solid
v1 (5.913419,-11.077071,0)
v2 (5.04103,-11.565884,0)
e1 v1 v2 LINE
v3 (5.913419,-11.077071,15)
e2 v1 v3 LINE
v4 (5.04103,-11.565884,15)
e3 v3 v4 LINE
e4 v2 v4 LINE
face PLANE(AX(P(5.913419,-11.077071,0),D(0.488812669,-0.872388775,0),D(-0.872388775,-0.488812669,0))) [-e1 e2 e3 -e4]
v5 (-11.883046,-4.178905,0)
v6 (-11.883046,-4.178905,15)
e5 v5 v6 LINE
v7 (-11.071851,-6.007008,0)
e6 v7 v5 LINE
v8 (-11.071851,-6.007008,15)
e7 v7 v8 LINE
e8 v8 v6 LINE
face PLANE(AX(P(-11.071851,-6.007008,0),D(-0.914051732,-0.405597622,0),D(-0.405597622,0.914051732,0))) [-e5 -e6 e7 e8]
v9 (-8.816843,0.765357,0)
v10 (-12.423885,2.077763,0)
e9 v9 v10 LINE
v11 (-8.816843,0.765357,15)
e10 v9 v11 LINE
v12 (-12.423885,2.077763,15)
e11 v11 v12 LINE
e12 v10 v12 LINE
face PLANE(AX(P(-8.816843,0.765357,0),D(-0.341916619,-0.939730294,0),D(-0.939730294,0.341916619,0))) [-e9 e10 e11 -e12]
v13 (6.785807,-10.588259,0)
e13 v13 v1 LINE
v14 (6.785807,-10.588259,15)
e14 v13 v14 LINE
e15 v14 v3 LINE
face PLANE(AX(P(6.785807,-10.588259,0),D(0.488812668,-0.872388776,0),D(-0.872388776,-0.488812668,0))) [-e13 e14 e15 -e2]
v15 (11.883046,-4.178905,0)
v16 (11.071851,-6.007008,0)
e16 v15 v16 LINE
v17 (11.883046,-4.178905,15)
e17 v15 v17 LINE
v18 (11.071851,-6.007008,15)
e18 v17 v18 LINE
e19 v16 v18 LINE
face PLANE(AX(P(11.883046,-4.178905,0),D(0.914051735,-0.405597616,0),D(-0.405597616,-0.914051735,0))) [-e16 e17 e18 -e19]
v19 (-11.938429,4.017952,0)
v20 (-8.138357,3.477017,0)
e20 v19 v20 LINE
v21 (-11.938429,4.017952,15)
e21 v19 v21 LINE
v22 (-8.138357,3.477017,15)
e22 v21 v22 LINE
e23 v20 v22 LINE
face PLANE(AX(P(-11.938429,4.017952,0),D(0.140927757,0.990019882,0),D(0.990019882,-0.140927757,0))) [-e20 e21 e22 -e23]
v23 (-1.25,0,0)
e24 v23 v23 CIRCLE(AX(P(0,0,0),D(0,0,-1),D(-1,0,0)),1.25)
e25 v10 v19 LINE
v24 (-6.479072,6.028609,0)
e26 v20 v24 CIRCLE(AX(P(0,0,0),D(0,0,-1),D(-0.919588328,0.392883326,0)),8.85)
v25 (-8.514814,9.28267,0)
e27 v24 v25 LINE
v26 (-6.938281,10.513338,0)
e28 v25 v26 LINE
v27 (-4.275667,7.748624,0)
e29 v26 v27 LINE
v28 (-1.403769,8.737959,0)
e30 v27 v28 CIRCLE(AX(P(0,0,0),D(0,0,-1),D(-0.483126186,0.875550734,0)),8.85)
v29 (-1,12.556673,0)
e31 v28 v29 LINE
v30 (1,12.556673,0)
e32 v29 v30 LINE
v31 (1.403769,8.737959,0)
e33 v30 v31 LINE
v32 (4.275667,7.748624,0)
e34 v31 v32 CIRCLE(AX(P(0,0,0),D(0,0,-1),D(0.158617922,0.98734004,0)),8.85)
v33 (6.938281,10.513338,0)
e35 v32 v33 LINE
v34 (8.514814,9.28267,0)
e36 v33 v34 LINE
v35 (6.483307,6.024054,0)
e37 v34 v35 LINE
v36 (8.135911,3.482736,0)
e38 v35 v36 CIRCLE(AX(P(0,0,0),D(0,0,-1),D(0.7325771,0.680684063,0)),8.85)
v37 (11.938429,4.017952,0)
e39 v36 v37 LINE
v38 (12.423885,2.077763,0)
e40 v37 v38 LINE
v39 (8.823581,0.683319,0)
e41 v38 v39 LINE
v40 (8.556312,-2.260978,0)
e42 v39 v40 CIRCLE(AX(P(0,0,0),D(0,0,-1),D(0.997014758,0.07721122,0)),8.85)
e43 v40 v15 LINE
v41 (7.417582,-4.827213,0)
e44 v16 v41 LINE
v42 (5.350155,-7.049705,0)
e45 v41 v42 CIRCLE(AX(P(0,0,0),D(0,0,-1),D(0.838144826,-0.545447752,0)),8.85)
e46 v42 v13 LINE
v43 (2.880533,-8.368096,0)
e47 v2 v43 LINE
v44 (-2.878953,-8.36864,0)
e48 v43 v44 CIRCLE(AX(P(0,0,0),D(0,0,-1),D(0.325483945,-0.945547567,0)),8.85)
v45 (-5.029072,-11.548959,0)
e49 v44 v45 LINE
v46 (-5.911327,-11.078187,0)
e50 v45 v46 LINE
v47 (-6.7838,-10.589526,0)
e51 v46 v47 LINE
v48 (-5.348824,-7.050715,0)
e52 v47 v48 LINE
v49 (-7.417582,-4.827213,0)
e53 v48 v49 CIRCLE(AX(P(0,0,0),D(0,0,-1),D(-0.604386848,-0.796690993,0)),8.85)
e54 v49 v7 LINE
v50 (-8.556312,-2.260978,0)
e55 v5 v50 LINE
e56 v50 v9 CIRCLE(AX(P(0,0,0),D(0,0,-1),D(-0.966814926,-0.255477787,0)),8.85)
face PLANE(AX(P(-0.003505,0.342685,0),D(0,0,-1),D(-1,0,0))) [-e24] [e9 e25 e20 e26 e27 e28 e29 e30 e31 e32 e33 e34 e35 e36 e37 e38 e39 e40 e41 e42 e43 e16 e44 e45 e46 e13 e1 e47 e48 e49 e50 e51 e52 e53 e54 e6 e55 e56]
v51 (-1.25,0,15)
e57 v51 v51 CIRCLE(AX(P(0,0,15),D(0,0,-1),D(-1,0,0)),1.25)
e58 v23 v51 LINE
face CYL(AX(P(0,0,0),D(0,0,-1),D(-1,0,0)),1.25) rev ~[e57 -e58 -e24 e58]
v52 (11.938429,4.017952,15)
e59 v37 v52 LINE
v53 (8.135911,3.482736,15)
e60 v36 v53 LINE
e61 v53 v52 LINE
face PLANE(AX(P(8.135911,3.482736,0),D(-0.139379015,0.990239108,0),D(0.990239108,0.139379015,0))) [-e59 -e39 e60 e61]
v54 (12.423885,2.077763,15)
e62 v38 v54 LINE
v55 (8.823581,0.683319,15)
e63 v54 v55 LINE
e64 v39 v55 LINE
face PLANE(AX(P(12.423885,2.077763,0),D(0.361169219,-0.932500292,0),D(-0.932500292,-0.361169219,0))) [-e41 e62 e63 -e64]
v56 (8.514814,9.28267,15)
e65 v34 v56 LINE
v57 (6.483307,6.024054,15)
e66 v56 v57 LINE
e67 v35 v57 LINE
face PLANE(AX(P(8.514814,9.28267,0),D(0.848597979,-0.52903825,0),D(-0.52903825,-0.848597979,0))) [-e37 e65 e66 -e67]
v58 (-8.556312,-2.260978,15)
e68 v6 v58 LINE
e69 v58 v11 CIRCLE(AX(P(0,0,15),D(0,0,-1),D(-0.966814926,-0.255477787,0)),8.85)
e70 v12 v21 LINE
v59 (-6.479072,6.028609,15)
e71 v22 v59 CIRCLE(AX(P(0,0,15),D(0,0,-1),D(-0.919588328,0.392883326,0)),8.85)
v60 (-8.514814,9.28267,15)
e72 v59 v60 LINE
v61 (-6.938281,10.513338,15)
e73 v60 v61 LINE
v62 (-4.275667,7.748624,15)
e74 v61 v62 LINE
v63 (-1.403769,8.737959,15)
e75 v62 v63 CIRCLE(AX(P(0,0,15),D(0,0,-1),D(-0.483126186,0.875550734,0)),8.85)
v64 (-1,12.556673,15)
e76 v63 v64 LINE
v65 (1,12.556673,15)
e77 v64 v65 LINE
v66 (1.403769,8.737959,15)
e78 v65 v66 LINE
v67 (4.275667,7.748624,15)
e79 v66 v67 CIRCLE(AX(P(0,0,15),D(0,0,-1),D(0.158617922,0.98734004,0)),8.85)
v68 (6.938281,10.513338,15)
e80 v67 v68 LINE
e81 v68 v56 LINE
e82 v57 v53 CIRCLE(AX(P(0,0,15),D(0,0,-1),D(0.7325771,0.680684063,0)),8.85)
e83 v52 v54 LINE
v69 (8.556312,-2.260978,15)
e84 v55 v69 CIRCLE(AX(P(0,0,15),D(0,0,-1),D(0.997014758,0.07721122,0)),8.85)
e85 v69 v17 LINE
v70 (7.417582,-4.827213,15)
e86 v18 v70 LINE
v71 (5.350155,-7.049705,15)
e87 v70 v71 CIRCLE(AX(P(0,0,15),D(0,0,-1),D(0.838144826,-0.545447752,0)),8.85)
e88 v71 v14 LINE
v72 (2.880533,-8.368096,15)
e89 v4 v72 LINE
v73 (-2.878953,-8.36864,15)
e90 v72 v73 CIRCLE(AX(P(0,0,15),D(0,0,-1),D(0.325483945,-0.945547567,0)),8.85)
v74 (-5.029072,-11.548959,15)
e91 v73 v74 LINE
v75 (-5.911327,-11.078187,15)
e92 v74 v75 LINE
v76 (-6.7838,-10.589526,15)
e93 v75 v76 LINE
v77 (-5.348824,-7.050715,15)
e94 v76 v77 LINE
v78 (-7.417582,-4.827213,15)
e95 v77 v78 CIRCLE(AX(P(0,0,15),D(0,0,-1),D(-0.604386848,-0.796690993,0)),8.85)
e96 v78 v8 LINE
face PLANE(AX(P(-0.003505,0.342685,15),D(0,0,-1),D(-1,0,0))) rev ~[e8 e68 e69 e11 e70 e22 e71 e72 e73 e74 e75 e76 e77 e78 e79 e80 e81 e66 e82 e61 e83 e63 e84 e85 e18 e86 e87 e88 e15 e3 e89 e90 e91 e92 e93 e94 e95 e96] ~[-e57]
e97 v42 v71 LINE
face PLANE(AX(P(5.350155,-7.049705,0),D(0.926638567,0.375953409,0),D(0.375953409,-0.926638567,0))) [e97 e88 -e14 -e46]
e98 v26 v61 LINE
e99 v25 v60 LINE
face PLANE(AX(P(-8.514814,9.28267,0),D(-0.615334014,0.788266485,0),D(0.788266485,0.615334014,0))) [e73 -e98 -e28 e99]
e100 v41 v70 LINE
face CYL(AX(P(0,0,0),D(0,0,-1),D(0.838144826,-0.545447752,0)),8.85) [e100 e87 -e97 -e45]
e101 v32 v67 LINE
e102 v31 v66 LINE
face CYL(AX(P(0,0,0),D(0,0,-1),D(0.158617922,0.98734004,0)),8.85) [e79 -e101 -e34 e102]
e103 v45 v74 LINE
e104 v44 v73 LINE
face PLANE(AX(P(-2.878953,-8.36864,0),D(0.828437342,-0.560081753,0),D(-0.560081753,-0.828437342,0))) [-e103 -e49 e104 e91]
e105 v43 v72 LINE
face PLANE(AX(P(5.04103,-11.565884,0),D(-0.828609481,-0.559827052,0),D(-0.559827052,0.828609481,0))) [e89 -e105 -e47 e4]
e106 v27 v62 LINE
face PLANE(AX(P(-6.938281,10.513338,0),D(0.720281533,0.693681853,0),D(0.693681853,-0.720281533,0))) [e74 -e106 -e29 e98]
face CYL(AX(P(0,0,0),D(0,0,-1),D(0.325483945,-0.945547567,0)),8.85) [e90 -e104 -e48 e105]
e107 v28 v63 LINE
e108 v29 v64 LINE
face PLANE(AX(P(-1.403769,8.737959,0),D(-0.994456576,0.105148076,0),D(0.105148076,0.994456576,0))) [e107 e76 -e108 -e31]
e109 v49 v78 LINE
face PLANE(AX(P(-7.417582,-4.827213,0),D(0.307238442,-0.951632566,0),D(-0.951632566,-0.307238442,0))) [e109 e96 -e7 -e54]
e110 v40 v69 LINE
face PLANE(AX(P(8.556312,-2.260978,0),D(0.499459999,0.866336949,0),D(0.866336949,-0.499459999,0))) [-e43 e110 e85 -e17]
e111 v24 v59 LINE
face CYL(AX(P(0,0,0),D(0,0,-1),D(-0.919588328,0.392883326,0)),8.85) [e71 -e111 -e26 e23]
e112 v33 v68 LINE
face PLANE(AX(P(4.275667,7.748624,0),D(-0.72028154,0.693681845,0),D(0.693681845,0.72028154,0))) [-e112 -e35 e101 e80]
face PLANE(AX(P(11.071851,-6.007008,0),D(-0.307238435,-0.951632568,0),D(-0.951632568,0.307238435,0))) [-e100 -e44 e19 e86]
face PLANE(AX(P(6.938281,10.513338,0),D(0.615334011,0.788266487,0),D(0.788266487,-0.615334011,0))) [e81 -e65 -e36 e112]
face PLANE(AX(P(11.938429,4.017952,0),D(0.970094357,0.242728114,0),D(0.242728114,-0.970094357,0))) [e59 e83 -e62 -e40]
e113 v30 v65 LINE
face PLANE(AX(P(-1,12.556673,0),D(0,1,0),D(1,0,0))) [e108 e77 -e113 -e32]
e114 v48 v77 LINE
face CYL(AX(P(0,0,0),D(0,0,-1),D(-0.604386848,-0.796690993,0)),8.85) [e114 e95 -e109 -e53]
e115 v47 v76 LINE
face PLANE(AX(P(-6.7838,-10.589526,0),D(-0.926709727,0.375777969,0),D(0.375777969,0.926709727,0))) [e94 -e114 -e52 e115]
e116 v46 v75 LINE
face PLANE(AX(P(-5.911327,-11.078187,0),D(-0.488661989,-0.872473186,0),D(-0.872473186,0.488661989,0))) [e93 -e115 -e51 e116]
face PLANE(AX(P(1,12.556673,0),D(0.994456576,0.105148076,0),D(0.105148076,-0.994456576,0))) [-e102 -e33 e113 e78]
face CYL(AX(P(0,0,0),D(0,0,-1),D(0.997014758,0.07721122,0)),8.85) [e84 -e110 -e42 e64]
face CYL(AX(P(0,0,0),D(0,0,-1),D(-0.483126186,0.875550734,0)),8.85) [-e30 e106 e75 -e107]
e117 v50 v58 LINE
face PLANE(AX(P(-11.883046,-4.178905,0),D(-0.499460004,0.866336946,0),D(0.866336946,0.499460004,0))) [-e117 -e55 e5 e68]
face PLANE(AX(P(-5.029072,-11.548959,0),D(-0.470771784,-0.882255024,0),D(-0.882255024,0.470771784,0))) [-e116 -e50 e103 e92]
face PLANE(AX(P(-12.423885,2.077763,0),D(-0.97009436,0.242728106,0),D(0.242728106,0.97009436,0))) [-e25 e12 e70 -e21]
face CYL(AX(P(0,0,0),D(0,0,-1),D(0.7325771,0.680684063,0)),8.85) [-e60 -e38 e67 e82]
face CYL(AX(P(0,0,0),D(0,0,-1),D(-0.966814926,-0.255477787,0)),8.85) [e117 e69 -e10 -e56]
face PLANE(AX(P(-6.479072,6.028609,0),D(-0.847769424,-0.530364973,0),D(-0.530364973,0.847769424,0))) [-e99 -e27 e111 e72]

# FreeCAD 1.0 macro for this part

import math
import FreeCAD as App
import Part
import Sketcher
Q = App.Units.Quantity

doc = App.newDocument("Part")
body = doc.addObject("PartDesign::Body", "Body")

# Sketch on XY plane
sketch1 = body.newObject("Sketcher::SketchObject", "Sketch")
sketch1.AttachmentSupport = (doc.getObject("XY_Plane"), [""])
sketch1.MapMode = "FlatFace"
sketch1.addGeometry([
    Part.LineSegment(App.Vector(1, 12.6, 0), App.Vector(-1, 12.6, 0)),  # 0
    Part.LineSegment(App.Vector(-1, 12.6, 0), App.Vector(-1.4, 8.7, 0)),  # 1
    Part.ArcOfCircle(Part.Circle(App.Vector(0, 0, 0), App.Vector(0, 0, 1), 8.9), math.radians(99.13), math.radians(118.89)),  # 2
    Part.LineSegment(App.Vector(-4.3, 7.7, 0), App.Vector(-6.9, 10.5, 0)),  # 3
    Part.LineSegment(App.Vector(-6.9, 10.5, 0), App.Vector(-8.5, 9.3, 0)),  # 4
    Part.LineSegment(App.Vector(-8.5, 9.3, 0), App.Vector(-6.5, 6, 0)),  # 5
    Part.ArcOfCircle(Part.Circle(App.Vector(0, 0, 0), App.Vector(0, 0, 1), 8.8), math.radians(137.06), math.radians(156.87)),  # 6
    Part.LineSegment(App.Vector(-8.1, 3.5, 0), App.Vector(-11.9, 4, 0)),  # 7
    Part.LineSegment(App.Vector(-11.9, 4, 0), App.Vector(-12.4, 2.1, 0)),  # 8
    Part.LineSegment(App.Vector(-12.4, 2.1, 0), App.Vector(-8.8, 0.8, 0)),  # 9
    Part.ArcOfCircle(Part.Circle(App.Vector(0, 0, 0), App.Vector(0, 0, 1), 8.8), math.radians(175.04), math.radians(194.8)),  # 10
    Part.LineSegment(App.Vector(-8.6, -2.3, 0), App.Vector(-11.9, -4.2, 0)),  # 11
    Part.LineSegment(App.Vector(-11.9, -4.2, 0), App.Vector(-11.1, -6, 0)),  # 12
    Part.LineSegment(App.Vector(-11.1, -6, 0), App.Vector(-7.4, -4.8, 0)),  # 13
    Part.ArcOfCircle(Part.Circle(App.Vector(0, 0, 0), App.Vector(0, 0, 1), 8.9), math.radians(-146.94), math.radians(-127.18)),  # 14
    Part.LineSegment(App.Vector(-5.3, -7.1, 0), App.Vector(-6.8, -10.6, 0)),  # 15
    Part.LineSegment(App.Vector(-6.8, -10.6, 0), App.Vector(-5.9, -11.1, 0)),  # 16
    Part.LineSegment(App.Vector(-5.9, -11.1, 0), App.Vector(-5, -11.5, 0)),  # 17
    Part.LineSegment(App.Vector(-5, -11.5, 0), App.Vector(-2.9, -8.4, 0)),  # 18
    Part.ArcOfCircle(Part.Circle(App.Vector(0, 0, 0), App.Vector(0, 0, 1), 8.8), math.radians(-109), math.radians(-71)),  # 19
    Part.LineSegment(App.Vector(2.9, -8.4, 0), App.Vector(5, -11.6, 0)),  # 20
    Part.LineSegment(App.Vector(5, -11.6, 0), App.Vector(5.9, -11.1, 0)),  # 21
    Part.LineSegment(App.Vector(5.9, -11.1, 0), App.Vector(6.8, -10.6, 0)),  # 22
    Part.LineSegment(App.Vector(6.8, -10.6, 0), App.Vector(5.4, -7, 0)),  # 23
    Part.ArcOfCircle(Part.Circle(App.Vector(0, 0, 0), App.Vector(0, 0, 1), 8.9), math.radians(-52.8), math.radians(-33.06)),  # 24
    Part.LineSegment(App.Vector(7.4, -4.8, 0), App.Vector(11.1, -6, 0)),  # 25
    Part.LineSegment(App.Vector(11.1, -6, 0), App.Vector(11.9, -4.2, 0)),  # 26
    Part.LineSegment(App.Vector(11.9, -4.2, 0), App.Vector(8.6, -2.3, 0)),  # 27
    Part.ArcOfCircle(Part.Circle(App.Vector(0, 0, 0), App.Vector(0, 0, 1), 8.9), math.radians(-14.8), math.radians(4.43)),  # 28
    Part.LineSegment(App.Vector(8.8, 0.7, 0), App.Vector(12.4, 2.1, 0)),  # 29
    Part.LineSegment(App.Vector(12.4, 2.1, 0), App.Vector(11.9, 4, 0)),  # 30
    Part.LineSegment(App.Vector(11.9, 4, 0), App.Vector(8.1, 3.5, 0)),  # 31
    Part.ArcOfCircle(Part.Circle(App.Vector(0, 0, 0), App.Vector(0, 0, 1), 8.9), math.radians(23.17), math.radians(42.9)),  # 32
    Part.LineSegment(App.Vector(6.5, 6, 0), App.Vector(8.5, 9.3, 0)),  # 33
    Part.LineSegment(App.Vector(8.5, 9.3, 0), App.Vector(6.9, 10.5, 0)),  # 34
    Part.LineSegment(App.Vector(6.9, 10.5, 0), App.Vector(4.3, 7.7, 0)),  # 35
    Part.ArcOfCircle(Part.Circle(App.Vector(0, 0, 0), App.Vector(0, 0, 1), 8.8), math.radians(61.11), math.radians(80.87)),  # 36
    Part.LineSegment(App.Vector(1.4, 8.7, 0), App.Vector(1, 12.6, 0)),  # 37
], False)
sketch1.addConstraint([
    Sketcher.Constraint("Coincident", 0, 2, 1, 1),
    Sketcher.Constraint("Coincident", 1, 2, 2, 1),
    Sketcher.Constraint("Coincident", 2, 2, 3, 1),
    Sketcher.Constraint("Coincident", 3, 2, 4, 1),
    Sketcher.Constraint("Coincident", 4, 2, 5, 1),
    Sketcher.Constraint("Coincident", 5, 2, 6, 1),
    Sketcher.Constraint("Coincident", 6, 2, 7, 1),
    Sketcher.Constraint("Coincident", 7, 2, 8, 1),
    Sketcher.Constraint("Coincident", 8, 2, 9, 1),
    Sketcher.Constraint("Coincident", 9, 2, 10, 1),
    Sketcher.Constraint("Coincident", 10, 2, 11, 1),
    Sketcher.Constraint("Coincident", 11, 2, 12, 1),
    Sketcher.Constraint("Coincident", 12, 2, 13, 1),
    Sketcher.Constraint("Coincident", 13, 2, 14, 1),
    Sketcher.Constraint("Coincident", 14, 2, 15, 1),
    Sketcher.Constraint("Coincident", 15, 2, 16, 1),
    Sketcher.Constraint("Coincident", 16, 2, 17, 1),
    Sketcher.Constraint("Coincident", 17, 2, 18, 1),
    Sketcher.Constraint("Coincident", 18, 2, 19, 1),
    Sketcher.Constraint("Coincident", 19, 2, 20, 1),
    Sketcher.Constraint("Coincident", 20, 2, 21, 1),
    Sketcher.Constraint("Coincident", 21, 2, 22, 1),
    Sketcher.Constraint("Coincident", 22, 2, 23, 1),
    Sketcher.Constraint("Coincident", 23, 2, 24, 1),
    Sketcher.Constraint("Coincident", 24, 2, 25, 1),
    Sketcher.Constraint("Coincident", 25, 2, 26, 1),
    Sketcher.Constraint("Coincident", 26, 2, 27, 1),
    Sketcher.Constraint("Coincident", 27, 2, 28, 1),
    Sketcher.Constraint("Coincident", 28, 2, 29, 1),
    Sketcher.Constraint("Coincident", 29, 2, 30, 1),
    Sketcher.Constraint("Coincident", 30, 2, 31, 1),
    Sketcher.Constraint("Coincident", 31, 2, 32, 1),
    Sketcher.Constraint("Coincident", 32, 2, 33, 1),
    Sketcher.Constraint("Coincident", 33, 2, 34, 1),
    Sketcher.Constraint("Coincident", 34, 2, 35, 1),
    Sketcher.Constraint("Coincident", 35, 2, 36, 1),
    Sketcher.Constraint("Coincident", 36, 2, 37, 1),
    Sketcher.Constraint("Coincident", 37, 2, 0, 1),
    Sketcher.Constraint("Horizontal", 0),
    Sketcher.Constraint("Coincident", 2, 3, -1, 1),
    Sketcher.Constraint("Coincident", 6, 3, -1, 1),
    Sketcher.Constraint("Coincident", 10, 3, -1, 1),
    Sketcher.Constraint("Coincident", 14, 3, -1, 1),
    Sketcher.Constraint("Coincident", 19, 3, -1, 1),
    Sketcher.Constraint("Coincident", 24, 3, -1, 1),
    Sketcher.Constraint("Coincident", 28, 3, -1, 1),
    Sketcher.Constraint("Coincident", 32, 3, -1, 1),
    Sketcher.Constraint("Coincident", 36, 3, -1, 1),
    Sketcher.Constraint("Equal", 2, 6),
    Sketcher.Constraint("Equal", 6, 10),
    Sketcher.Constraint("Equal", 10, 14),
    Sketcher.Constraint("Equal", 14, 19),
    Sketcher.Constraint("Equal", 19, 24),
    Sketcher.Constraint("Equal", 24, 28),
    Sketcher.Constraint("Equal", 28, 32),
    Sketcher.Constraint("Equal", 32, 36),
    Sketcher.Constraint("Symmetric", 12, 2, 25, 2, -2),
    Sketcher.Constraint("Symmetric", 11, 2, 26, 2, -2),
    Sketcher.Constraint("Symmetric", 8, 2, 29, 2, -2),
    Sketcher.Constraint("Symmetric", 7, 2, 30, 2, -2),
    Sketcher.Constraint("Symmetric", 4, 2, 33, 2, -2),
    Sketcher.Constraint("Symmetric", 3, 2, 34, 2, -2),
    Sketcher.Constraint("Parallel", 21, 22),
    Sketcher.Constraint("Horizontal", 13, 2, 24, 2),
    Sketcher.Constraint("Horizontal", 10, 2, 27, 2),
    Sketcher.Constraint("Horizontal", 2, 2, 35, 2),
    Sketcher.Constraint("Horizontal", 1, 2, 36, 2),
    Sketcher.Constraint("Equal", 3, 5),
    Sketcher.Constraint("Equal", 5, 7),
    Sketcher.Constraint("Equal", 4, 8),
    Sketcher.Constraint("Equal", 7, 9),
    Sketcher.Constraint("Equal", 1, 11),
    Sketcher.Constraint("Equal", 8, 12),
    Sketcher.Constraint("Equal", 11, 13),
    Sketcher.Constraint("Equal", 16, 17),
    Sketcher.Constraint("Equal", 17, 21),
    Sketcher.Constraint("Equal", 21, 22),
    Sketcher.Constraint("Equal", 27, 31),
    Sketcher.Constraint("Equal", 31, 33),
    Sketcher.Constraint("Equal", 33, 37),
    Sketcher.Constraint("DistanceX", 0, 2, 0, 1, Q("2 mm")),
    Sketcher.Constraint("Radius", 2, Q("8.85 mm")),
    Sketcher.Constraint("Distance", 4, Q("2 mm")),
    Sketcher.Constraint("Distance", 16, Q("1 mm")),
    Sketcher.Constraint("Distance", 1, Q("3.84 mm")),
    Sketcher.Constraint("DistanceX", 24, 2, 28, 2, Q("1.405999 mm")),
    Sketcher.Constraint("Distance", 23, Q("3.818698 mm")),
    Sketcher.Constraint("DistanceX", 15, 2, -1, 1, Q("6.7838 mm")),
    Sketcher.Constraint("DistanceX", 2, 2, 1, 2, Q("2.871898 mm")),
    Sketcher.Constraint("DistanceX", 17, 2, 20, 2, Q("10.070102 mm")),
    Sketcher.Constraint("DistanceY", 17, 2, 22, 2, Q("0.960701 mm")),
    Sketcher.Constraint("DistanceY", 23, 2, 26, 2, Q("2.870801 mm")),
    Sketcher.Constraint("DistanceX", 31, 2, 27, 2, Q("0.420401 mm")),
    Sketcher.Constraint("DistanceY", 31, 2, 34, 2, Q("7.030602 mm")),
    Sketcher.Constraint("Distance", 3, Q("3.83838 mm")),
    Sketcher.Constraint("Distance", 18, Q("3.838938 mm")),
    Sketcher.Constraint("DistanceX", 1, 2, -1, 1, Q("1.403769 mm")),
    Sketcher.Constraint("DistanceX", 3, 2, -1, 1, Q("6.938281 mm")),
    Sketcher.Constraint("DistanceY", -1, 1, 4, 2, Q("9.28267 mm")),
    Sketcher.Constraint("DistanceX", 7, 2, -1, 1, Q("11.938429 mm")),
    Sketcher.Constraint("DistanceX", 12, 2, -1, 1, Q("11.071851 mm")),
    Sketcher.Constraint("DistanceY", 12, 2, -1, 1, Q("6.007008 mm")),
    Sketcher.Constraint("DistanceY", 17, 2, -1, 1, Q("11.548959 mm")),
    Sketcher.Constraint("DistanceY", 18, 2, -1, 1, Q("8.36864 mm")),
    Sketcher.Constraint("DistanceY", 8, 2, 7, 2, Q("1.940189 mm")),
    Sketcher.Constraint("DistanceX", 13, 2, 14, 2, Q("2.068758 mm")),
    Sketcher.Constraint("DistanceY", 15, 2, 14, 2, Q("3.53881 mm")),
    Sketcher.Constraint("DistanceY", 19, 2, 14, 2, Q("1.317381 mm")),
])
pad1 = body.newObject("PartDesign::Pad", "Pad")
pad1.Profile = sketch1
pad1.Length = 15

# Sketch on XY plane
sketch2 = body.newObject("Sketcher::SketchObject", "Sketch001")
sketch2.AttachmentSupport = (doc.getObject("XY_Plane"), [""])
sketch2.MapMode = "FlatFace"
sketch2.addGeometry(Part.Circle(App.Vector(0, 0, 0), App.Vector(0, 0, 1), 1.2), False)
sketch2.addConstraint([
    Sketcher.Constraint("Coincident", 0, 3, -1, 1),
    Sketcher.Constraint("Diameter", 0, Q("2.5 mm")),
])
pocket1 = body.newObject("PartDesign::Pocket", "Pocket")
pocket1.Profile = sketch2
pocket1.Length = 15
pocket1.Reversed = True

doc.recompute()
